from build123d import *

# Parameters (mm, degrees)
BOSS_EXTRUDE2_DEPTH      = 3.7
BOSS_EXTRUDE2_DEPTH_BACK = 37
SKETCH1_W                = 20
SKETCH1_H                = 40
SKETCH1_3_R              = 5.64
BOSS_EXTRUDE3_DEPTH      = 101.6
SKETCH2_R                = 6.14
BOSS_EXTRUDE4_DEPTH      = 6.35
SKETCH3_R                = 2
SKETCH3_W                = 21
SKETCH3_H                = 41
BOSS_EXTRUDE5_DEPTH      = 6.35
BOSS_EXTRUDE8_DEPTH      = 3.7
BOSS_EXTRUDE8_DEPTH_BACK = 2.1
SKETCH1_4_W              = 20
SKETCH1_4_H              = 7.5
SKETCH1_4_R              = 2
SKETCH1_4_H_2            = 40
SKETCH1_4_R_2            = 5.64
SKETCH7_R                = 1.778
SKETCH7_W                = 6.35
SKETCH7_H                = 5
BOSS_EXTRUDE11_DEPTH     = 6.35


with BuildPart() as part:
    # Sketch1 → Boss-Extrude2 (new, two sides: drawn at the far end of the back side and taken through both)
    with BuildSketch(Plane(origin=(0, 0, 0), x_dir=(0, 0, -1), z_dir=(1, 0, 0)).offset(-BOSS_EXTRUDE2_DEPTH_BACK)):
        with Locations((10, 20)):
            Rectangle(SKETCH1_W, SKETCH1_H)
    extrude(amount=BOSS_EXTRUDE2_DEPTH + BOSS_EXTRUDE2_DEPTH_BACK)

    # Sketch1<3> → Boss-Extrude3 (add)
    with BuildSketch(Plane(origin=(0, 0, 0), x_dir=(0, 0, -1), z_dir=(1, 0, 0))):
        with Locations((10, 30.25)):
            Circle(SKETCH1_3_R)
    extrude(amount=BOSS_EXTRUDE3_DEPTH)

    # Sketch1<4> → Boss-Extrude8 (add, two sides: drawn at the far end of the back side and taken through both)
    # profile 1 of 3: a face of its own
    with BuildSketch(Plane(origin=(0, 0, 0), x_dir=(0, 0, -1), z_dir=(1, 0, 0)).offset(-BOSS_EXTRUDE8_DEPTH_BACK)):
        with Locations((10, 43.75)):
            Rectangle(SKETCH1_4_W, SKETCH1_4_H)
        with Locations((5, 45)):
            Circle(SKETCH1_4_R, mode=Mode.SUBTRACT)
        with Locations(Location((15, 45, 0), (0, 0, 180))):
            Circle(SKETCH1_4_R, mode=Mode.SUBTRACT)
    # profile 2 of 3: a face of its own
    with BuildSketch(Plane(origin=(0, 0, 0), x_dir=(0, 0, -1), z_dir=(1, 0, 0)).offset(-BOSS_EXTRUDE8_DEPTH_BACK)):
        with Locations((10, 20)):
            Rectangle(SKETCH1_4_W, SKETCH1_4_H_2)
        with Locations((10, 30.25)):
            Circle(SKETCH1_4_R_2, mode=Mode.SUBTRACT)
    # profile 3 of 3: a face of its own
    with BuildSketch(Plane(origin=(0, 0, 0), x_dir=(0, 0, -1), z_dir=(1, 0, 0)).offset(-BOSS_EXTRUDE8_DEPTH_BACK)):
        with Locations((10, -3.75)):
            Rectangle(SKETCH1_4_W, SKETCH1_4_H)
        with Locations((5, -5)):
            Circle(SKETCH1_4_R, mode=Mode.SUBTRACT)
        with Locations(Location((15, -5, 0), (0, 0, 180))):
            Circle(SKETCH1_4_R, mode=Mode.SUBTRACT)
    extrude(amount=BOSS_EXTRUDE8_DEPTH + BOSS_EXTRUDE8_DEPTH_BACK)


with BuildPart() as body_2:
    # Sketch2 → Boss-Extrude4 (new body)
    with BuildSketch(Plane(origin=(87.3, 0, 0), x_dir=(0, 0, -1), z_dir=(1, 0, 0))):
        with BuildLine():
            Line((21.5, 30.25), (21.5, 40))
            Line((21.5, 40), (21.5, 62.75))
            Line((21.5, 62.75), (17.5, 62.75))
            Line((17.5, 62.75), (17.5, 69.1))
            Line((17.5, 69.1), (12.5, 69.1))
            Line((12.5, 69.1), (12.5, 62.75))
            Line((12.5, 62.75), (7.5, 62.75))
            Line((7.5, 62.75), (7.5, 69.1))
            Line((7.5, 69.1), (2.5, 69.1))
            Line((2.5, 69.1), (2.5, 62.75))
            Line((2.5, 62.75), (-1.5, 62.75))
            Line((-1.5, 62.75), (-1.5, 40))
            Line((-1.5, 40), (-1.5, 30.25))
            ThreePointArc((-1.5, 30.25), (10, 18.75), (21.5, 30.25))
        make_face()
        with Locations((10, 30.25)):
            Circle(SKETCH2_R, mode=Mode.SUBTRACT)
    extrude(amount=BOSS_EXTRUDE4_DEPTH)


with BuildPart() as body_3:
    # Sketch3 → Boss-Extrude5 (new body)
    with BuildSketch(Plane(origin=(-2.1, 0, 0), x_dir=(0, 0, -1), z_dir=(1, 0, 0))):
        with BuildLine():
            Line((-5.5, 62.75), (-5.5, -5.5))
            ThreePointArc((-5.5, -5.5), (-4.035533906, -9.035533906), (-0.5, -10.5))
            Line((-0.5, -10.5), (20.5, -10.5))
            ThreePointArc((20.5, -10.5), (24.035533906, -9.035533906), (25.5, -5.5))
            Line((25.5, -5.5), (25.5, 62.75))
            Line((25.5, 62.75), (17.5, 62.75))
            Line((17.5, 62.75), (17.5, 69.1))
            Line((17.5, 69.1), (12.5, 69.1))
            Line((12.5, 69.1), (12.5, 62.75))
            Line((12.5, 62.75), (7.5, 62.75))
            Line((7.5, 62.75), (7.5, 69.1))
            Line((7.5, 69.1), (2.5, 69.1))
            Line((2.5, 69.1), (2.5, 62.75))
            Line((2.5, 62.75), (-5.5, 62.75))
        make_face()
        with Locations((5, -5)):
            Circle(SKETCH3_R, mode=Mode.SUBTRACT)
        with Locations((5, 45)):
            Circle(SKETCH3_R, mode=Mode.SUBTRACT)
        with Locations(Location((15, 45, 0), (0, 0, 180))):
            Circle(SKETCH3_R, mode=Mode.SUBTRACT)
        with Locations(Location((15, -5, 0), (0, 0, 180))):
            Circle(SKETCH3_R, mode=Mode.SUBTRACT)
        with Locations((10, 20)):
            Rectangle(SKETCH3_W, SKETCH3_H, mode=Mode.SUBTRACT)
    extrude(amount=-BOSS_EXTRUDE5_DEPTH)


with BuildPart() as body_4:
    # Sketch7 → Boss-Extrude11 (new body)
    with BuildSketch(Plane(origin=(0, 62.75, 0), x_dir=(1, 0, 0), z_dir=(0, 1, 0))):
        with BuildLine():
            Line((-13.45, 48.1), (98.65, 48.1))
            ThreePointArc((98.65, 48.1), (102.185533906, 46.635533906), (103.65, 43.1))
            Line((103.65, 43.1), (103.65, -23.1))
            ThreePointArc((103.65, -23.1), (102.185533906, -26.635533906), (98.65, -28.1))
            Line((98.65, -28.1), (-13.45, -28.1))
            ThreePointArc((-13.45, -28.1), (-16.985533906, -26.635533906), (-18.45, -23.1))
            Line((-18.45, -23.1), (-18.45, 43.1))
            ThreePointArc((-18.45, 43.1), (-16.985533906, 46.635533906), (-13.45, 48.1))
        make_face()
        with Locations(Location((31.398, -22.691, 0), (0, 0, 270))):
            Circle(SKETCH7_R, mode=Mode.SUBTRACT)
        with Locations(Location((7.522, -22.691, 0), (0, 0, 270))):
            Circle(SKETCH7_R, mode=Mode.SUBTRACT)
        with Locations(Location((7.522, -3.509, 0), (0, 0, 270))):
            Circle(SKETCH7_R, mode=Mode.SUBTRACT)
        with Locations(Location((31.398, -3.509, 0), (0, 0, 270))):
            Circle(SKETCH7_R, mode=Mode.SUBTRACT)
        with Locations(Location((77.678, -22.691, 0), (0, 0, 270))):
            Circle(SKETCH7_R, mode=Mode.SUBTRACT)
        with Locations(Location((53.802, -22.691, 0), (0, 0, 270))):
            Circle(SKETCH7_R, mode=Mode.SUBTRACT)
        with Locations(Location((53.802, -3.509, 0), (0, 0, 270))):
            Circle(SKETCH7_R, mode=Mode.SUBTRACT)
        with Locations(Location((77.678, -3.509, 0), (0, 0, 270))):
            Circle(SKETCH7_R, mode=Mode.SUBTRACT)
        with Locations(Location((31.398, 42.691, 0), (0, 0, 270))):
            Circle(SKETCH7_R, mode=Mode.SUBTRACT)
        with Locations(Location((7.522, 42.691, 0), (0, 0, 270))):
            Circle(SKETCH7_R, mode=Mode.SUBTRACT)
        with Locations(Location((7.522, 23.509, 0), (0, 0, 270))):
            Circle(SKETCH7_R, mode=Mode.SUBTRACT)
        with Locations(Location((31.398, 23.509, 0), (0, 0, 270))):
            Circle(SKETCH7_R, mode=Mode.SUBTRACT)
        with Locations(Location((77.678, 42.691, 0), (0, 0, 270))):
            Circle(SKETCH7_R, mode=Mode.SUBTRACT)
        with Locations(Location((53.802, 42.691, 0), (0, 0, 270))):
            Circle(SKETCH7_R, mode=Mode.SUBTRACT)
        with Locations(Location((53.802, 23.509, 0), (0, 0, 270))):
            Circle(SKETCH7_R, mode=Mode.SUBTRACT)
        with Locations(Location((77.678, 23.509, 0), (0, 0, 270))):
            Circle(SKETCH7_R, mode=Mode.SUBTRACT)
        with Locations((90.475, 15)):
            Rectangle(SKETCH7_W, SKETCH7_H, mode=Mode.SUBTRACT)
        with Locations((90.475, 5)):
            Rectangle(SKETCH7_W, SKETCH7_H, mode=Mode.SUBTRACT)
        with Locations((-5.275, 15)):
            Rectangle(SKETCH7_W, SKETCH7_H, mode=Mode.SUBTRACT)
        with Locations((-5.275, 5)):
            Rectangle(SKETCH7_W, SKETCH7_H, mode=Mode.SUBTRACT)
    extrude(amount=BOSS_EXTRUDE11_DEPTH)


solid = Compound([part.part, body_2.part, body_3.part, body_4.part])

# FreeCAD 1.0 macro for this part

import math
import FreeCAD as App
import Part
import Sketcher
from FreeCAD import Vector


def add_polygon(sketch, points):
    """Adds a closed chain of lines whose ends are joined by coincident constraints."""
    first, n = sketch.GeometryCount, len(points)
    for a, b in zip(points, points[1:] + points[:1]):
        sketch.addGeometry(Part.LineSegment(App.Vector(*a, 0), App.Vector(*b, 0)), False)
    for i in range(n):
        sketch.addConstraint(Sketcher.Constraint("Coincident", first + i, 2, first + (i + 1) % n, 1))

doc = App.newDocument("Part")
body = doc.addObject("PartDesign::Body", "Body")

# Sketch on YZ plane
sketch1 = doc.addObject("Sketcher::SketchObject", "Sketch")
body.addObject(sketch1)
sketch1.AttachmentSupport = (doc.YZ_Plane, [""])
sketch1.MapMode = "FlatFace"
add_polygon(sketch1, [(40, 0), (0, 0), (0, -20), (40, -20)])  # lines 0-3
sketch1.addConstraint(Sketcher.Constraint("Horizontal", 0))
sketch1.addConstraint(Sketcher.Constraint("Vertical", 1))
sketch1.addConstraint(Sketcher.Constraint("Horizontal", 2))
sketch1.addConstraint(Sketcher.Constraint("Vertical", 3))
sketch1.addConstraint(Sketcher.Constraint("Coincident", 0, 2, -1, 1))
sketch1.addConstraint(Sketcher.Constraint("DistanceX", 0, 2, 0, 1, 40.0))
sketch1.addConstraint(Sketcher.Constraint("DistanceY", 1, 2, 1, 1, 20.0))
pad1 = doc.addObject("PartDesign::Pad", "Pad")
body.addObject(pad1)
pad1.Profile = sketch1
pad1.Type = "TwoLengths"
pad1.Length = 3.7
pad1.Length2 = 37

# Sketch on YZ plane
sketch2 = doc.addObject("Sketcher::SketchObject", "Sketch001")
body.addObject(sketch2)
sketch2.AttachmentSupport = (doc.YZ_Plane, [""])
sketch2.MapMode = "FlatFace"
sketch2.addGeometry(Part.Circle(Vector(30, -10, 0), Vector(0, 0, 1), 6), False)
sketch2.addConstraint(Sketcher.Constraint("Diameter", 0, 11.28))
sketch2.addConstraint(Sketcher.Constraint("DistanceY", 0, 3, -1, 1, 10.0))
sketch2.addConstraint(Sketcher.Constraint("DistanceX", -1, 1, 0, 3, 30.25))
pad2 = doc.addObject("PartDesign::Pad", "Pad001")
body.addObject(pad2)
pad2.Profile = sketch2
pad2.Length = 101.6

# Sketch on YZ plane
sketch3 = doc.addObject("Sketcher::SketchObject", "Sketch002")
body.addObject(sketch3)
sketch3.AttachmentSupport = (doc.YZ_Plane, [""])
sketch3.MapMode = "FlatFace"
add_polygon(sketch3, [(47.5, 0), (-7.5, 0), (-7.5, -20), (47.5, -20)])  # lines 0-3
sketch3.addGeometry(Part.Circle(Vector(45, -5, 0), Vector(0, 0, 1), 2), False)  # 4
sketch3.addGeometry(Part.Circle(Vector(45, -15, 0), Vector(0, 0, 1), 2), False)  # 5
sketch3.addGeometry(Part.Circle(Vector(30.2, -10, 0), Vector(0, 0, 1), 5.6), False)  # 6
sketch3.addGeometry(Part.Circle(Vector(-5, -15, 0), Vector(0, 0, 1), 2), False)  # 7
sketch3.addGeometry(Part.Circle(Vector(-5, -5, 0), Vector(0, 0, 1), 2), False)  # 8
sketch3.addConstraint(Sketcher.Constraint("Horizontal", 0))
sketch3.addConstraint(Sketcher.Constraint("Vertical", 1))
sketch3.addConstraint(Sketcher.Constraint("Horizontal", 2))
sketch3.addConstraint(Sketcher.Constraint("Vertical", 3))
sketch3.addConstraint(Sketcher.Constraint("Equal", 4, 5))
sketch3.addConstraint(Sketcher.Constraint("Equal", 5, 7))
sketch3.addConstraint(Sketcher.Constraint("Equal", 7, 8))
sketch3.addConstraint(Sketcher.Constraint("PointOnObject", 0, 2, -1))
sketch3.addConstraint(Sketcher.Constraint("Horizontal", 5, 3, 7, 3))
sketch3.addConstraint(Sketcher.Constraint("Horizontal", 4, 3, 8, 3))
sketch3.addConstraint(Sketcher.Constraint("Vertical", 4, 3, 5, 3))
sketch3.addConstraint(Sketcher.Constraint("Vertical", 7, 3, 8, 3))
sketch3.addConstraint(Sketcher.Constraint("Diameter", 4, 4.0))
sketch3.addConstraint(Sketcher.Constraint("Diameter", 6, 11.28))
sketch3.addConstraint(Sketcher.Constraint("DistanceX", 0, 2, 0, 1, 55.0))
sketch3.addConstraint(Sketcher.Constraint("DistanceY", 1, 2, 1, 1, 20.0))
sketch3.addConstraint(Sketcher.Constraint("DistanceX", -1, 1, 4, 3, 45.0))
sketch3.addConstraint(Sketcher.Constraint("DistanceY", 4, 3, -1, 1, 5.0))
sketch3.addConstraint(Sketcher.Constraint("DistanceY", 5, 3, -1, 1, 15.0))
sketch3.addConstraint(Sketcher.Constraint("DistanceY", 6, 3, -1, 1, 10.0))
sketch3.addConstraint(Sketcher.Constraint("DistanceX", 7, 3, -1, 1, 5.0))
sketch3.addConstraint(Sketcher.Constraint("DistanceX", 0, 2, -1, 1, 7.5))
sketch3.addConstraint(Sketcher.Constraint("DistanceX", -1, 1, 6, 3, 30.25))
pad3 = doc.addObject("PartDesign::Pad", "Pad002")
body.addObject(pad3)
pad3.Profile = sketch3
pad3.Type = "TwoLengths"
pad3.Length = 3.7
pad3.Length2 = 2.1
body2 = doc.addObject("PartDesign::Body", "Body001")

# Sketch on YZ plane
sketch4 = doc.addObject("Sketcher::SketchObject", "Sketch003")
body2.addObject(sketch4)
sketch4.AttachmentSupport = (doc.getObject("YZ_Plane001"), [""])
sketch4.MapMode = "FlatFace"
sketch4.AttachmentOffset = App.Placement(Vector(0, 0, 87.3), App.Rotation())
sketch4.addGeometry(Part.LineSegment(Vector(30.2, -21.5, 0), Vector(62.8, -21.5, 0)), False)
sketch4.addGeometry(Part.LineSegment(Vector(62.8, -21.5, 0), Vector(62.8, -17.5, 0)), False)
sketch4.addGeometry(Part.LineSegment(Vector(62.8, -17.5, 0), Vector(69.1, -17.5, 0)), False)
sketch4.addGeometry(Part.LineSegment(Vector(69.1, -17.5, 0), Vector(69.1, -12.5, 0)), False)
sketch4.addGeometry(Part.LineSegment(Vector(69.1, -12.5, 0), Vector(62.8, -12.5, 0)), False)
sketch4.addGeometry(Part.LineSegment(Vector(62.8, -12.5, 0), Vector(62.8, -7.5, 0)), False)
sketch4.addGeometry(Part.LineSegment(Vector(62.8, -7.5, 0), Vector(69.1, -7.5, 0)), False)
sketch4.addGeometry(Part.LineSegment(Vector(69.1, -7.5, 0), Vector(69.1, -2.5, 0)), False)
sketch4.addGeometry(Part.LineSegment(Vector(69.1, -2.5, 0), Vector(62.8, -2.5, 0)), False)
sketch4.addGeometry(Part.LineSegment(Vector(62.8, -2.5, 0), Vector(62.8, 1.5, 0)), False)
sketch4.addGeometry(Part.LineSegment(Vector(62.8, 1.5, 0), Vector(30.2, 1.5, 0)), False)
sketch4.addGeometry(Part.ArcOfCircle(Part.Circle(Vector(30.2, -10, 0), Vector(0, 0, 1), 11.5), math.radians(90), math.radians(270)), False)
sketch4.addGeometry(Part.Circle(Vector(30.2, -10, 0), Vector(0, 0, 1), 6.1), False)
sketch4.addConstraint(Sketcher.Constraint("Coincident", 0, 2, 1, 1))
sketch4.addConstraint(Sketcher.Constraint("Coincident", 1, 2, 2, 1))
sketch4.addConstraint(Sketcher.Constraint("Coincident", 2, 2, 3, 1))
sketch4.addConstraint(Sketcher.Constraint("Coincident", 3, 2, 4, 1))
sketch4.addConstraint(Sketcher.Constraint("Coincident", 4, 2, 5, 1))
sketch4.addConstraint(Sketcher.Constraint("Coincident", 5, 2, 6, 1))
sketch4.addConstraint(Sketcher.Constraint("Coincident", 6, 2, 7, 1))
sketch4.addConstraint(Sketcher.Constraint("Coincident", 7, 2, 8, 1))
sketch4.addConstraint(Sketcher.Constraint("Coincident", 8, 2, 9, 1))
sketch4.addConstraint(Sketcher.Constraint("Coincident", 9, 2, 10, 1))
sketch4.addConstraint(Sketcher.Constraint("Tangent", 10, 2, 11, 1))
sketch4.addConstraint(Sketcher.Constraint("Tangent", 11, 2, 0, 1))
sketch4.addConstraint(Sketcher.Constraint("Horizontal", 0))
sketch4.addConstraint(Sketcher.Constraint("Vertical", 1))
sketch4.addConstraint(Sketcher.Constraint("Horizontal", 2))
sketch4.addConstraint(Sketcher.Constraint("Vertical", 3))
sketch4.addConstraint(Sketcher.Constraint("Horizontal", 4))
sketch4.addConstraint(Sketcher.Constraint("Vertical", 5))
sketch4.addConstraint(Sketcher.Constraint("Horizontal", 6))
sketch4.addConstraint(Sketcher.Constraint("Vertical", 7))
sketch4.addConstraint(Sketcher.Constraint("Horizontal", 8))
sketch4.addConstraint(Sketcher.Constraint("Vertical", 9))
sketch4.addConstraint(Sketcher.Constraint("Horizontal", 10))
sketch4.addConstraint(Sketcher.Constraint("Coincident", 12, 3, 11, 3))
sketch4.addConstraint(Sketcher.Constraint("Vertical", 1, 2, 4, 2))
sketch4.addConstraint(Sketcher.Constraint("Vertical", 3, 2, 6, 2))
sketch4.addConstraint(Sketcher.Constraint("Vertical", 5, 2, 8, 2))
sketch4.addConstraint(Sketcher.Constraint("Equal", 3, 5))
sketch4.addConstraint(Sketcher.Constraint("Equal", 5, 7))
sketch4.addConstraint(Sketcher.Constraint("Equal", 1, 9))
sketch4.addConstraint(Sketcher.Constraint("Radius", 11, 11.5))
sketch4.addConstraint(Sketcher.Constraint("Diameter", 12, 12.28))
sketch4.addConstraint(Sketcher.Constraint("DistanceY", 1, 1, 1, 2, 4.0))
sketch4.addConstraint(Sketcher.Constraint("DistanceX", 0, 1, 0, 2, 32.5))
sketch4.addConstraint(Sketcher.Constraint("DistanceY", 11, 3, -1, 1, 10.0))
sketch4.addConstraint(Sketcher.Constraint("DistanceX", 2, 1, 2, 2, 6.35))
sketch4.addConstraint(Sketcher.Constraint("DistanceX", -1, 1, 2, 2, 69.1))
pad4 = doc.addObject("PartDesign::Pad", "Pad003")
body2.addObject(pad4)
pad4.Profile = sketch4
pad4.Length = 6.35
body3 = doc.addObject("PartDesign::Body", "Body002")

# Sketch on YZ plane
sketch5 = doc.addObject("Sketcher::SketchObject", "Sketch004")
body3.addObject(sketch5)
sketch5.AttachmentSupport = (doc.getObject("YZ_Plane002"), [""])
sketch5.MapMode = "FlatFace"
sketch5.AttachmentOffset = App.Placement(Vector(0, 0, -2.1), App.Rotation())
sketch5.addGeometry(Part.LineSegment(Vector(62.8, 5.5, 0), Vector(-5.5, 5.5, 0)), False)  # 0
sketch5.addGeometry(Part.ArcOfCircle(Part.Circle(Vector(-5.5, 0.5, 0), Vector(0, 0, 1), 5), math.radians(90), math.radians(180)), False)  # 1
sketch5.addGeometry(Part.LineSegment(Vector(-10.5, 0.5, 0), Vector(-10.5, -20.5, 0)), False)  # 2
sketch5.addGeometry(Part.ArcOfCircle(Part.Circle(Vector(-5.5, -20.5, 0), Vector(0, 0, 1), 5), math.radians(180), math.radians(270)), False)  # 3
sketch5.addGeometry(Part.LineSegment(Vector(-5.5, -25.5, 0), Vector(62.8, -25.5, 0)), False)  # 4
sketch5.addGeometry(Part.LineSegment(Vector(62.8, -25.5, 0), Vector(62.8, -17.5, 0)), False)  # 5
sketch5.addGeometry(Part.LineSegment(Vector(62.8, -17.5, 0), Vector(69.1, -17.5, 0)), False)  # 6
sketch5.addGeometry(Part.LineSegment(Vector(69.1, -17.5, 0), Vector(69.1, -12.5, 0)), False)  # 7
sketch5.addGeometry(Part.LineSegment(Vector(69.1, -12.5, 0), Vector(62.8, -12.5, 0)), False)  # 8
sketch5.addGeometry(Part.LineSegment(Vector(62.8, -12.5, 0), Vector(62.8, -7.5, 0)), False)  # 9
sketch5.addGeometry(Part.LineSegment(Vector(62.8, -7.5, 0), Vector(69.1, -7.5, 0)), False)  # 10
sketch5.addGeometry(Part.LineSegment(Vector(69.1, -7.5, 0), Vector(69.1, -2.5, 0)), False)  # 11
sketch5.addGeometry(Part.LineSegment(Vector(69.1, -2.5, 0), Vector(62.8, -2.5, 0)), False)  # 12
sketch5.addGeometry(Part.LineSegment(Vector(62.8, -2.5, 0), Vector(62.8, 5.5, 0)), False)  # 13
sketch5.addGeometry(Part.Circle(Vector(-5, -5, 0), Vector(0, 0, 1), 2), False)  # 14
sketch5.addGeometry(Part.Circle(Vector(-5, -15, 0), Vector(0, 0, 1), 2), False)  # 15
sketch5.addGeometry(Part.Circle(Vector(45, -5, 0), Vector(0, 0, 1), 2), False)  # 16
add_polygon(sketch5, [(-0.5, -20.5), (-0.5, 0.5), (40.5, 0.5), (40.5, -20.5)])  # lines 17-20
sketch5.addGeometry(Part.Circle(Vector(45, -15, 0), Vector(0, 0, 1), 2), False)  # 21
sketch5.addConstraint(Sketcher.Constraint("Tangent", 0, 2, 1, 1))
sketch5.addConstraint(Sketcher.Constraint("Tangent", 1, 2, 2, 1))
sketch5.addConstraint(Sketcher.Constraint("Tangent", 2, 2, 3, 1))
sketch5.addConstraint(Sketcher.Constraint("Tangent", 3, 2, 4, 1))
sketch5.addConstraint(Sketcher.Constraint("Coincident", 4, 2, 5, 1))
sketch5.addConstraint(Sketcher.Constraint("Coincident", 5, 2, 6, 1))
sketch5.addConstraint(Sketcher.Constraint("Coincident", 6, 2, 7, 1))
sketch5.addConstraint(Sketcher.Constraint("Coincident", 7, 2, 8, 1))
sketch5.addConstraint(Sketcher.Constraint("Coincident", 8, 2, 9, 1))
sketch5.addConstraint(Sketcher.Constraint("Coincident", 9, 2, 10, 1))
sketch5.addConstraint(Sketcher.Constraint("Coincident", 10, 2, 11, 1))
sketch5.addConstraint(Sketcher.Constraint("Coincident", 11, 2, 12, 1))
sketch5.addConstraint(Sketcher.Constraint("Coincident", 12, 2, 13, 1))
sketch5.addConstraint(Sketcher.Constraint("Coincident", 13, 2, 0, 1))
sketch5.addConstraint(Sketcher.Constraint("Horizontal", 0))
sketch5.addConstraint(Sketcher.Constraint("Vertical", 2))
sketch5.addConstraint(Sketcher.Constraint("Horizontal", 4))
sketch5.addConstraint(Sketcher.Constraint("Vertical", 5))
sketch5.addConstraint(Sketcher.Constraint("Horizontal", 6))
sketch5.addConstraint(Sketcher.Constraint("Vertical", 7))
sketch5.addConstraint(Sketcher.Constraint("Horizontal", 8))
sketch5.addConstraint(Sketcher.Constraint("Vertical", 9))
sketch5.addConstraint(Sketcher.Constraint("Horizontal", 10))
sketch5.addConstraint(Sketcher.Constraint("Vertical", 11))
sketch5.addConstraint(Sketcher.Constraint("Horizontal", 12))
sketch5.addConstraint(Sketcher.Constraint("Vertical", 13))
sketch5.addConstraint(Sketcher.Constraint("Vertical", 17))
sketch5.addConstraint(Sketcher.Constraint("Horizontal", 18))
sketch5.addConstraint(Sketcher.Constraint("Vertical", 19))
sketch5.addConstraint(Sketcher.Constraint("Horizontal", 20))
sketch5.addConstraint(Sketcher.Constraint("Equal", 1, 3))
sketch5.addConstraint(Sketcher.Constraint("Equal", 14, 15))
sketch5.addConstraint(Sketcher.Constraint("Equal", 15, 16))
sketch5.addConstraint(Sketcher.Constraint("Equal", 16, 21))
sketch5.addConstraint(Sketcher.Constraint("Horizontal", 14, 3, 16, 3))
sketch5.addConstraint(Sketcher.Constraint("Horizontal", 15, 3, 21, 3))
sketch5.addConstraint(Sketcher.Constraint("Horizontal", 1, 2, 17, 2))
sketch5.addConstraint(Sketcher.Constraint("Horizontal", 2, 2, 19, 2))
sketch5.addConstraint(Sketcher.Constraint("Vertical", 14, 3, 15, 3))
sketch5.addConstraint(Sketcher.Constraint("Vertical", 16, 3, 21, 3))
sketch5.addConstraint(Sketcher.Constraint("Vertical", 5, 2, 8, 2))
sketch5.addConstraint(Sketcher.Constraint("Vertical", 7, 2, 10, 2))
sketch5.addConstraint(Sketcher.Constraint("Vertical", 9, 2, 12, 2))
sketch5.addConstraint(Sketcher.Constraint("Equal", 7, 9))
sketch5.addConstraint(Sketcher.Constraint("Equal", 9, 11))
sketch5.addConstraint(Sketcher.Constraint("Equal", 5, 13))
sketch5.addConstraint(Sketcher.Constraint("Diameter", 14, 4.0))
sketch5.addConstraint(Sketcher.Constraint("Radius", 1, 5.0))
sketch5.addConstraint(Sketcher.Constraint("DistanceX", 18, 1, 18, 2, 41.0))
sketch5.addConstraint(Sketcher.Constraint("DistanceY", 2, 2, 2, 1, 21.0))
sketch5.addConstraint(Sketcher.Constraint("DistanceY", 5, 1, 5, 2, 8.0))
sketch5.addConstraint(Sketcher.Constraint("DistanceX", 14, 3, -1, 1, 5.0))
sketch5.addConstraint(Sketcher.Constraint("DistanceY", 14, 3, -1, 1, 5.0))
sketch5.addConstraint(Sketcher.Constraint("DistanceY", 15, 3, -1, 1, 15.0))
sketch5.addConstraint(Sketcher.Constraint("DistanceX", -1, 1, 16, 3, 45.0))
sketch5.addConstraint(Sketcher.Constraint("DistanceX", 1, 3, 17, 2, 5.0))
sketch5.addConstraint(Sketcher.Constraint("DistanceX", 0, 2, 0, 1, 68.25))
sketch5.addConstraint(Sketcher.Constraint("DistanceX", 6, 1, 6, 2, 6.35))
sketch5.addConstraint(Sketcher.Constraint("DistanceX", 1, 3, -1, 1, 5.5))
sketch5.addConstraint(Sketcher.Constraint("DistanceY", -1, 1, 1, 3, 0.5))
pad5 = doc.addObject("PartDesign::Pad", "Pad004")
body3.addObject(pad5)
pad5.Profile = sketch5
pad5.Length = 6.35
pad5.Reversed = True
body4 = doc.addObject("PartDesign::Body", "Body003")

# Sketch on XZ plane
sketch6 = doc.addObject("Sketcher::SketchObject", "Sketch005")
body4.addObject(sketch6)
sketch6.AttachmentSupport = (doc.getObject("XZ_Plane003"), [""])
sketch6.MapMode = "FlatFace"
sketch6.AttachmentOffset = App.Placement(Vector(0, 0, -62.75), App.Rotation())
sketch6.addGeometry(Part.LineSegment(Vector(98.7, -48.1, 0), Vector(-13.4, -48.1, 0)), False)  # 0
sketch6.addGeometry(Part.ArcOfCircle(Part.Circle(Vector(-13.4, -43.1, 0), Vector(0, 0, 1), 5), math.radians(180), math.radians(270)), False)  # 1
sketch6.addGeometry(Part.LineSegment(Vector(-18.4, -43.1, 0), Vector(-18.4, 23.1, 0)), False)  # 2
sketch6.addGeometry(Part.ArcOfCircle(Part.Circle(Vector(-13.4, 23.1, 0), Vector(0, 0, 1), 5), math.radians(90), math.radians(180)), False)  # 3
sketch6.addGeometry(Part.LineSegment(Vector(-13.4, 28.1, 0), Vector(98.7, 28.1, 0)), False)  # 4
sketch6.addGeometry(Part.ArcOfCircle(Part.Circle(Vector(98.7, 23.1, 0), Vector(0, 0, 1), 5), math.radians(0), math.radians(90)), False)  # 5
sketch6.addGeometry(Part.LineSegment(Vector(103.7, 23.1, 0), Vector(103.7, -43.1, 0)), False)  # 6
sketch6.addGeometry(Part.ArcOfCircle(Part.Circle(Vector(98.7, -43.1, 0), Vector(0, 0, 1), 5), math.radians(-90), math.radians(0)), False)  # 7
sketch6.addGeometry(Part.Circle(Vector(77.7, 22.7, 0), Vector(0, 0, 1), 1.8), False)  # 8
sketch6.addGeometry(Part.Circle(Vector(53.8, 22.7, 0), Vector(0, 0, 1), 1.8), False)  # 9
sketch6.addGeometry(Part.Circle(Vector(77.7, 3.5, 0), Vector(0, 0, 1), 1.8), False)  # 10
add_polygon(sketch6, [(87.3, -2.5), (87.3, -7.5), (93.7, -7.5), (93.7, -2.5)])  # lines 11-14
sketch6.addGeometry(Part.Circle(Vector(53.8, 3.5, 0), Vector(0, 0, 1), 1.8), False)  # 15
sketch6.addGeometry(Part.Circle(Vector(31.4, 22.7, 0), Vector(0, 0, 1), 1.8), False)  # 16
sketch6.addGeometry(Part.Circle(Vector(7.5, 22.7, 0), Vector(0, 0, 1), 1.8), False)  # 17
sketch6.addGeometry(Part.Circle(Vector(31.4, 3.5, 0), Vector(0, 0, 1), 1.8), False)  # 18
sketch6.addGeometry(Part.Circle(Vector(7.5, 3.5, 0), Vector(0, 0, 1), 1.8), False)  # 19
add_polygon(sketch6, [(-8.4, -2.5), (-8.4, -7.5), (-2.1, -7.5), (-2.1, -2.5)])  # lines 20-23
add_polygon(sketch6, [(87.3, -12.5), (87.3, -17.5), (93.7, -17.5), (93.7, -12.5)])  # lines 24-27
sketch6.addGeometry(Part.Circle(Vector(77.7, -23.5, 0), Vector(0, 0, 1), 1.8), False)  # 28
sketch6.addGeometry(Part.Circle(Vector(53.8, -23.5, 0), Vector(0, 0, 1), 1.8), False)  # 29
sketch6.addGeometry(Part.Circle(Vector(77.7, -42.7, 0), Vector(0, 0, 1), 1.8), False)  # 30
sketch6.addGeometry(Part.Circle(Vector(53.8, -42.7, 0), Vector(0, 0, 1), 1.8), False)  # 31
sketch6.addGeometry(Part.Circle(Vector(31.4, -23.5, 0), Vector(0, 0, 1), 1.8), False)  # 32
add_polygon(sketch6, [(-8.4, -12.5), (-8.4, -17.5), (-2.1, -17.5), (-2.1, -12.5)])  # lines 33-36
sketch6.addGeometry(Part.Circle(Vector(7.5, -23.5, 0), Vector(0, 0, 1), 1.8), False)  # 37
sketch6.addGeometry(Part.Circle(Vector(31.4, -42.7, 0), Vector(0, 0, 1), 1.8), False)  # 38
sketch6.addGeometry(Part.Circle(Vector(7.5, -42.7, 0), Vector(0, 0, 1), 1.8), False)  # 39
sketch6.addConstraint(Sketcher.Constraint("Tangent", 0, 2, 1, 2))
sketch6.addConstraint(Sketcher.Constraint("Tangent", 1, 1, 2, 1))
sketch6.addConstraint(Sketcher.Constraint("Tangent", 2, 2, 3, 2))
sketch6.addConstraint(Sketcher.Constraint("Tangent", 3, 1, 4, 1))
sketch6.addConstraint(Sketcher.Constraint("Tangent", 4, 2, 5, 2))
sketch6.addConstraint(Sketcher.Constraint("Tangent", 5, 1, 6, 1))
sketch6.addConstraint(Sketcher.Constraint("Tangent", 6, 2, 7, 2))
sketch6.addConstraint(Sketcher.Constraint("Tangent", 7, 1, 0, 1))
sketch6.addConstraint(Sketcher.Constraint("Horizontal", 0))
sketch6.addConstraint(Sketcher.Constraint("Vertical", 2))
sketch6.addConstraint(Sketcher.Constraint("Horizontal", 4))
sketch6.addConstraint(Sketcher.Constraint("Vertical", 6))
sketch6.addConstraint(Sketcher.Constraint("Vertical", 11))
sketch6.addConstraint(Sketcher.Constraint("Horizontal", 12))
sketch6.addConstraint(Sketcher.Constraint("Vertical", 13))
sketch6.addConstraint(Sketcher.Constraint("Horizontal", 14))
sketch6.addConstraint(Sketcher.Constraint("Vertical", 20))
sketch6.addConstraint(Sketcher.Constraint("Horizontal", 21))
sketch6.addConstraint(Sketcher.Constraint("Vertical", 22))
sketch6.addConstraint(Sketcher.Constraint("Horizontal", 23))
sketch6.addConstraint(Sketcher.Constraint("Vertical", 24))
sketch6.addConstraint(Sketcher.Constraint("Horizontal", 25))
sketch6.addConstraint(Sketcher.Constraint("Vertical", 26))
sketch6.addConstraint(Sketcher.Constraint("Horizontal", 27))
sketch6.addConstraint(Sketcher.Constraint("Vertical", 33))
sketch6.addConstraint(Sketcher.Constraint("Horizontal", 34))
sketch6.addConstraint(Sketcher.Constraint("Vertical", 35))
sketch6.addConstraint(Sketcher.Constraint("Horizontal", 36))
sketch6.addConstraint(Sketcher.Constraint("Equal", 1, 3))
sketch6.addConstraint(Sketcher.Constraint("Equal", 3, 5))
sketch6.addConstraint(Sketcher.Constraint("Equal", 5, 7))
sketch6.addConstraint(Sketcher.Constraint("Equal", 8, 9))
sketch6.addConstraint(Sketcher.Constraint("Equal", 9, 10))
sketch6.addConstraint(Sketcher.Constraint("Equal", 10, 15))
sketch6.addConstraint(Sketcher.Constraint("Equal", 15, 16))
sketch6.addConstraint(Sketcher.Constraint("Equal", 16, 17))
sketch6.addConstraint(Sketcher.Constraint("Equal", 17, 18))
sketch6.addConstraint(Sketcher.Constraint("Equal", 18, 19))
sketch6.addConstraint(Sketcher.Constraint("Equal", 19, 28))
sketch6.addConstraint(Sketcher.Constraint("Equal", 28, 29))
sketch6.addConstraint(Sketcher.Constraint("Equal", 29, 30))
sketch6.addConstraint(Sketcher.Constraint("Equal", 30, 31))
sketch6.addConstraint(Sketcher.Constraint("Equal", 31, 32))
sketch6.addConstraint(Sketcher.Constraint("Equal", 32, 37))
sketch6.addConstraint(Sketcher.Constraint("Equal", 37, 38))
sketch6.addConstraint(Sketcher.Constraint("Equal", 38, 39))
sketch6.addConstraint(Sketcher.Constraint("Horizontal", 8, 3, 9, 3))
sketch6.addConstraint(Sketcher.Constraint("Horizontal", 10, 3, 15, 3))
sketch6.addConstraint(Sketcher.Constraint("Horizontal", 9, 3, 16, 3))
sketch6.addConstraint(Sketcher.Constraint("Horizontal", 16, 3, 17, 3))
sketch6.addConstraint(Sketcher.Constraint("Horizontal", 15, 3, 18, 3))
sketch6.addConstraint(Sketcher.Constraint("Horizontal", 18, 3, 19, 3))
sketch6.addConstraint(Sketcher.Constraint("Horizontal", 28, 3, 29, 3))
sketch6.addConstraint(Sketcher.Constraint("Horizontal", 30, 3, 31, 3))
sketch6.addConstraint(Sketcher.Constraint("Horizontal", 29, 3, 32, 3))
sketch6.addConstraint(Sketcher.Constraint("Horizontal", 32, 3, 37, 3))
sketch6.addConstraint(Sketcher.Constraint("Horizontal", 31, 3, 38, 3))
sketch6.addConstraint(Sketcher.Constraint("Horizontal", 38, 3, 39, 3))
sketch6.addConstraint(Sketcher.Constraint("Horizontal", 12, 2, 20, 2))
sketch6.addConstraint(Sketcher.Constraint("Horizontal", 14, 2, 22, 2))
sketch6.addConstraint(Sketcher.Constraint("Horizontal", 25, 2, 33, 2))
sketch6.addConstraint(Sketcher.Constraint("Horizontal", 27, 2, 35, 2))
sketch6.addConstraint(Sketcher.Constraint("Vertical", 8, 3, 10, 3))
sketch6.addConstraint(Sketcher.Constraint("Vertical", 9, 3, 15, 3))
sketch6.addConstraint(Sketcher.Constraint("Vertical", 16, 3, 18, 3))
sketch6.addConstraint(Sketcher.Constraint("Vertical", 17, 3, 19, 3))
sketch6.addConstraint(Sketcher.Constraint("Vertical", 10, 3, 28, 3))
sketch6.addConstraint(Sketcher.Constraint("Vertical", 15, 3, 29, 3))
sketch6.addConstraint(Sketcher.Constraint("Vertical", 28, 3, 30, 3))
sketch6.addConstraint(Sketcher.Constraint("Vertical", 29, 3, 31, 3))
sketch6.addConstraint(Sketcher.Constraint("Vertical", 18, 3, 32, 3))
sketch6.addConstraint(Sketcher.Constraint("Vertical", 19, 3, 37, 3))
sketch6.addConstraint(Sketcher.Constraint("Vertical", 32, 3, 38, 3))
sketch6.addConstraint(Sketcher.Constraint("Vertical", 37, 3, 39, 3))
sketch6.addConstraint(Sketcher.Constraint("Vertical", 14, 2, 24, 2))
sketch6.addConstraint(Sketcher.Constraint("Vertical", 13, 2, 25, 2))
sketch6.addConstraint(Sketcher.Constraint("Vertical", 23, 2, 33, 2))
sketch6.addConstraint(Sketcher.Constraint("Vertical", 22, 2, 34, 2))
sketch6.addConstraint(Sketcher.Constraint("Equal", 14, 21))
sketch6.addConstraint(Sketcher.Constraint("Equal", 22, 24))
sketch6.addConstraint(Sketcher.Constraint("Radius", 1, 5.0))
sketch6.addConstraint(Sketcher.Constraint("DistanceY", 11, 2, 11, 1, 5.0))
sketch6.addConstraint(Sketcher.Constraint("Diameter", 8, 3.556))
sketch6.addConstraint(Sketcher.Constraint("DistanceX", 0, 2, 0, 1, 112.1))
sketch6.addConstraint(Sketcher.Constraint("DistanceY", 2, 1, 2, 2, 66.2))
sketch6.addConstraint(Sketcher.Constraint("DistanceX", 12, 2, 5, 3, 5.0))
sketch6.addConstraint(Sketcher.Constraint("DistanceX", 3, 3, 20, 2, 5.0))
sketch6.addConstraint(Sketcher.Constraint("DistanceY", 24, 2, 11, 2, 10.0))
sketch6.addConstraint(Sketcher.Constraint("DistanceX", 12, 1, 12, 2, 6.35))
sketch6.addConstraint(Sketcher.Constraint("DistanceY", 1, 3, -1, 1, 43.1))
sketch6.addConstraint(Sketcher.Constraint("DistanceX", -1, 1, 11, 2, 87.3))
sketch6.addConstraint(Sketcher.Constraint("DistanceY", 11, 2, -1, 1, 7.5))
sketch6.addConstraint(Sketcher.Constraint("DistanceY", 28, 3, 8, 3, 46.2))
sketch6.addConstraint(Sketcher.Constraint("DistanceY", 30, 3, 10, 3, 46.2))
sketch6.addConstraint(Sketcher.Constraint("DistanceX", 16, 3, 8, 3, 46.28))
sketch6.addConstraint(Sketcher.Constraint("DistanceX", 17, 3, 9, 3, 46.28))
sketch6.addConstraint(Sketcher.Constraint("DistanceX", -1, 1, 8, 3, 77.678))
sketch6.addConstraint(Sketcher.Constraint("DistanceY", -1, 1, 8, 3, 22.691))
sketch6.addConstraint(Sketcher.Constraint("DistanceX", -1, 1, 9, 3, 53.802))
sketch6.addConstraint(Sketcher.Constraint("DistanceY", -1, 1, 10, 3, 3.509))
pad6 = doc.addObject("PartDesign::Pad", "Pad005")
body4.addObject(pad6)
pad6.Profile = sketch6
pad6.Length = 6.35
pad6.Reversed = True

doc.recompute()
